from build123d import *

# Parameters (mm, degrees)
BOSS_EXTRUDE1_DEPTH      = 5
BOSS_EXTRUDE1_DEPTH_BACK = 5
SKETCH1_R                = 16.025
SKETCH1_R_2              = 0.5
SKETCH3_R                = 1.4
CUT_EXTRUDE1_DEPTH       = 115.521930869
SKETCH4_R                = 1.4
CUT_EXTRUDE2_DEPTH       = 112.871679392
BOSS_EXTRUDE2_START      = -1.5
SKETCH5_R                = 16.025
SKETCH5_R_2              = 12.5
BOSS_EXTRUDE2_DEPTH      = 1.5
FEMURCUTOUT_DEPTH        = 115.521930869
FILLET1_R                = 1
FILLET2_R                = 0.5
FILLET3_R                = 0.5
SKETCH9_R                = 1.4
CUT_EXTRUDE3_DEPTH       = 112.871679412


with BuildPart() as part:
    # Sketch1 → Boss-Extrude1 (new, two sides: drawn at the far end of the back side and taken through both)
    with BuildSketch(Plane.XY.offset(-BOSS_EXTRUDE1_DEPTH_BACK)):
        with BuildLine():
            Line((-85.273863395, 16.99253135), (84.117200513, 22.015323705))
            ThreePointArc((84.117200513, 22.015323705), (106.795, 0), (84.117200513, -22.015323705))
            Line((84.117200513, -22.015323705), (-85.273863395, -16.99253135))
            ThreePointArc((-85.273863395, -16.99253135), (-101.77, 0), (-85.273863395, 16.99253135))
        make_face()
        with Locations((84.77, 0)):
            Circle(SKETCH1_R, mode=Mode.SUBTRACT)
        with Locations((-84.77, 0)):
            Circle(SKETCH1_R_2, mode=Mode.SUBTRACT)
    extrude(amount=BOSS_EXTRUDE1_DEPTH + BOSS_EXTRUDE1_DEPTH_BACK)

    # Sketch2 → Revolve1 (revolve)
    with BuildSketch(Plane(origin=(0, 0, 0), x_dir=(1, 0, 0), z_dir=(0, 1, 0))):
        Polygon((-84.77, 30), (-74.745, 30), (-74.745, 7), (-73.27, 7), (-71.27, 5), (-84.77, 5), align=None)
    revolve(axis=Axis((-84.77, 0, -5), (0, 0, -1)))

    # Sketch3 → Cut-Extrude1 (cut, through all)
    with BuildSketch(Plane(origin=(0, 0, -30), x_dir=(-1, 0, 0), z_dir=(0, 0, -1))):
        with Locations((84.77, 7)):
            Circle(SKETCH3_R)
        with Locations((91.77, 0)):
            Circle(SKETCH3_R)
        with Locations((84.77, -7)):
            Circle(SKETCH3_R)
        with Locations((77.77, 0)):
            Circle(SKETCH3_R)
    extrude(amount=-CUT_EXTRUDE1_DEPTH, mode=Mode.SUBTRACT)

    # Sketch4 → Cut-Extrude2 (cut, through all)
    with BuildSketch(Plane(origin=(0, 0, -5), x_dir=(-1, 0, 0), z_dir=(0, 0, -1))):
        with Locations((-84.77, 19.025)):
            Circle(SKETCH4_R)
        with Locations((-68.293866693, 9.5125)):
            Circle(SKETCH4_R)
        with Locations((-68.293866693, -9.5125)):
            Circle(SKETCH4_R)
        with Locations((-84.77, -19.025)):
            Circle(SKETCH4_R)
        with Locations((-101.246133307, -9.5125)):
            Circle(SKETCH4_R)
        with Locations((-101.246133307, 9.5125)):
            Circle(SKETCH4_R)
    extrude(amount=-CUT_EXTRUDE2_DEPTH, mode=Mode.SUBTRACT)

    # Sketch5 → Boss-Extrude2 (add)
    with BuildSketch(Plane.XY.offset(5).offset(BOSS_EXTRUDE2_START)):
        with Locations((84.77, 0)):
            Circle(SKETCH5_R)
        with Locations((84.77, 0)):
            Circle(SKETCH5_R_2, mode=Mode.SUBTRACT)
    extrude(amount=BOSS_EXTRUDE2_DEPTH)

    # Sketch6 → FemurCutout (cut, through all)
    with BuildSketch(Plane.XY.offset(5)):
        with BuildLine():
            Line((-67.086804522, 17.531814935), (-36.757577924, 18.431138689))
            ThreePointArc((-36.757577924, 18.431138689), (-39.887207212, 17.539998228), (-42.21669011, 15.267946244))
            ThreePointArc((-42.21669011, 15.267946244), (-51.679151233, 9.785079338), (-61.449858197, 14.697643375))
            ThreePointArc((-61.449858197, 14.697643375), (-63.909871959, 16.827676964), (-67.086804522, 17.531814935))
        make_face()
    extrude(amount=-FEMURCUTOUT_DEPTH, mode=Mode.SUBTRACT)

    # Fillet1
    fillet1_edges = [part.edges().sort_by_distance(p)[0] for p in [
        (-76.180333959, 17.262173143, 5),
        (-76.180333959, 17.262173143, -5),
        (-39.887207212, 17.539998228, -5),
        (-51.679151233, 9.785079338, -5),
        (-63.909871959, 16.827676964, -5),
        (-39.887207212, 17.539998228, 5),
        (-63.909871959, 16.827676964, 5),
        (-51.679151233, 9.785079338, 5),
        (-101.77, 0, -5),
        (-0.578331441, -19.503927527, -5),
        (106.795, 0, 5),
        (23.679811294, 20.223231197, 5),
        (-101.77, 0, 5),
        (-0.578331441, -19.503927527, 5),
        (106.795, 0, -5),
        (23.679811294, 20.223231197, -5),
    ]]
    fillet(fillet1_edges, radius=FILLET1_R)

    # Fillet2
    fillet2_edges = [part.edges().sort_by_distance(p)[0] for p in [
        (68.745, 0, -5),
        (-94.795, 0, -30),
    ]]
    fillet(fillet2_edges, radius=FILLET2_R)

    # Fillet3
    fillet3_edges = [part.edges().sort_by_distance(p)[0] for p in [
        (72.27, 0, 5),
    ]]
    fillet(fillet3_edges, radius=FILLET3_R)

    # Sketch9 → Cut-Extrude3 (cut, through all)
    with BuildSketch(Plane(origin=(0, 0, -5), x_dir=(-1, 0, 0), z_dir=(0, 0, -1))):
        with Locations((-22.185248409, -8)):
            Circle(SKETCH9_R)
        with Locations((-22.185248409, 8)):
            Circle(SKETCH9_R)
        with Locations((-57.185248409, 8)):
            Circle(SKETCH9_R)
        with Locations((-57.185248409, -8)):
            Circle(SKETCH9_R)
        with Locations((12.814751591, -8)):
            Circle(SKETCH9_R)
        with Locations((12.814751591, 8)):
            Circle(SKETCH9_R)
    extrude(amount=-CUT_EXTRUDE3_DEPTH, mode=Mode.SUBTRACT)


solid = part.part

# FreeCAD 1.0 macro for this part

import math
import FreeCAD as App
import Part
import Sketcher

V = App.Vector
Q = App.Units.Quantity


def edges_at(feature, points):
    """Names of the edges that pass closest to the given points."""
    edges = feature.Shape.Edges
    near = lambda p: min(range(len(edges)), key=lambda i: edges[i].distToShape(Part.Vertex(*p))[0])
    return sorted({f"Edge{near(p) + 1}" for p in points})

doc = App.newDocument("Part")
body = doc.addObject("PartDesign::Body", "Body")

# Sketch on XY plane
sketch1 = body.newObject("Sketcher::SketchObject", "Sketch")
sketch1.AttachmentSupport = (doc.getObject("XY_Plane"), [""])
sketch1.MapMode = "FlatFace"
sketch1.addGeometry([
    Part.LineSegment(V(84.1, 22, 0), V(-85.3, 17, 0)),  # 0
    Part.ArcOfCircle(Part.Circle(V(-84.8, 0, 0), V(0, 0, 1), 17), math.radians(92), math.radians(268)),  # 1
    Part.LineSegment(V(-85.3, -17, 0), V(84.1, -22, 0)),  # 2
    Part.ArcOfCircle(Part.Circle(V(84.8, 0, 0), V(0, 0, 1), 22), math.radians(-92), math.radians(92)),  # 3
    Part.Circle(V(84.8, 0, 0), V(0, 0, 1), 16),  # 4
    Part.Circle(V(-84.8, 0, 0), V(0, 0, 1), 0.5),  # 5
], False)
sketch1.addConstraint([
    Sketcher.Constraint("Tangent", 0, 2, 1, 1),
    Sketcher.Constraint("Tangent", 1, 2, 2, 1),
    Sketcher.Constraint("Tangent", 2, 2, 3, 1),
    Sketcher.Constraint("Tangent", 3, 2, 0, 1),
    Sketcher.Constraint("Coincident", 4, 3, 3, 3),
    Sketcher.Constraint("Coincident", 5, 3, 1, 3),
    Sketcher.Constraint("Symmetric", 1, 3, 3, 3, -1, 1),
    Sketcher.Constraint("PointOnObject", 1, 3, -1),
    Sketcher.Constraint("Diameter", 5, 1.0),
    Sketcher.Constraint("Radius", 1, 17.0),
    Sketcher.Constraint("Diameter", 4, 32.05),
    Sketcher.Constraint("Radius", 3, 22.025),
    Sketcher.Constraint("DistanceX", 1, 3, -1, 1, 84.77),
])
pad1 = body.newObject("PartDesign::Pad", "Pad")
pad1.Profile = sketch1
pad1.Type = "TwoLengths"
pad1.Length = 5
pad1.Length2 = 5

# Sketch on XZ plane
sketch2 = body.newObject("Sketcher::SketchObject", "Sketch001")
sketch2.AttachmentSupport = (doc.getObject("XZ_Plane"), [""])
sketch2.MapMode = "FlatFace"
sketch2.addGeometry([
    Part.LineSegment(V(-74.7, -30, 0), V(-84.8, -30, 0)),  # 0
    Part.LineSegment(V(-84.8, -30, 0), V(-84.8, -5, 0)),  # 1
    Part.LineSegment(V(-84.8, -5, 0), V(-71.3, -5, 0)),  # 2
    Part.LineSegment(V(-71.3, -5, 0), V(-73.3, -7, 0)),  # 3
    Part.LineSegment(V(-73.3, -7, 0), V(-74.7, -7, 0)),  # 4
    Part.LineSegment(V(-74.7, -7, 0), V(-74.7, -30, 0)),  # 5
], False)
sketch2.addGeometry(Part.LineSegment(V(-84.8, -5, 0), V(-84.8, -30, 0)), True)  # axis
sketch2.addConstraint([
    Sketcher.Constraint("Coincident", 0, 2, 1, 1),
    Sketcher.Constraint("Coincident", 1, 2, 2, 1),
    Sketcher.Constraint("Coincident", 2, 2, 3, 1),
    Sketcher.Constraint("Coincident", 3, 2, 4, 1),
    Sketcher.Constraint("Coincident", 4, 2, 5, 1),
    Sketcher.Constraint("Coincident", 5, 2, 0, 1),
    Sketcher.Constraint("Horizontal", 0),
    Sketcher.Constraint("Vertical", 1),
    Sketcher.Constraint("Horizontal", 2),
    Sketcher.Constraint("Horizontal", 4),
    Sketcher.Constraint("Vertical", 5),
    Sketcher.Constraint("Vertical", 6),
    Sketcher.Constraint("Coincident", 6, 1, 1, 2),
    Sketcher.Constraint("Horizontal", 5, 2, 6, 2),
    Sketcher.Constraint("DistanceY", 1, 1, 1, 2, 25.0),
    Sketcher.Constraint("DistanceY", 5, 2, 5, 1, 23.0),
    Sketcher.Constraint("Angle", 3, Q("-135 deg")),
    Sketcher.Constraint("DistanceX", 2, 1, 2, 2, 13.5),
    Sketcher.Constraint("DistanceY", 0, 2, -1, 1, 30.0),
    Sketcher.Constraint("DistanceX", 0, 2, 0, 1, 10.025),
    Sketcher.Constraint("DistanceX", 0, 2, -1, 1, 84.77),
])
revolution = body.newObject("PartDesign::Revolution", "Revolution")
revolution.Profile = sketch2
revolution.ReferenceAxis = (sketch2, ["Axis0"])
revolution.Angle = 360

# Sketch on XY plane
sketch3 = body.newObject("Sketcher::SketchObject", "Sketch002")
sketch3.AttachmentSupport = (doc.getObject("XY_Plane"), [""])
sketch3.MapMode = "FlatFace"
sketch3.AttachmentOffset = App.Placement(V(0, 0, -30), App.Rotation())
sketch3.addGeometry([
    Part.Circle(V(-84.8, 7, 0), V(0, 0, 1), 1.4),
    Part.Circle(V(-91.8, 0, 0), V(0, 0, 1), 1.4),
    Part.Circle(V(-84.8, -7, 0), V(0, 0, 1), 1.4),
    Part.Circle(V(-77.8, 0, 0), V(0, 0, 1), 1.4),
], False)
sketch3.addConstraint([
    Sketcher.Constraint("Equal", 0, 1),
    Sketcher.Constraint("Equal", 1, 2),
    Sketcher.Constraint("Equal", 2, 3),
    Sketcher.Constraint("Symmetric", 0, 3, 2, 3, -1),
    Sketcher.Constraint("PointOnObject", 1, 3, -1),
    Sketcher.Constraint("PointOnObject", 3, 3, -1),
    Sketcher.Constraint("Diameter", 0, 2.8),
    Sketcher.Constraint("DistanceY", -1, 1, 0, 3, 7.0),
    Sketcher.Constraint("DistanceX", 1, 3, 0, 3, 7.0),
    Sketcher.Constraint("DistanceX", 0, 3, 3, 3, 7.0),
    Sketcher.Constraint("DistanceX", 0, 3, -1, 1, 84.77),
])
pocket1 = body.newObject("PartDesign::Pocket", "Pocket")
pocket1.Profile = sketch3
pocket1.Type = "ThroughAll"
pocket1.Reversed = True

# Sketch on XY plane
sketch4 = body.newObject("Sketcher::SketchObject", "Sketch003")
sketch4.AttachmentSupport = (doc.getObject("XY_Plane"), [""])
sketch4.MapMode = "FlatFace"
sketch4.AttachmentOffset = App.Placement(V(0, 0, -5), App.Rotation())
sketch4.addGeometry([
    Part.Circle(V(84.8, 19, 0), V(0, 0, 1), 1.4),  # 0
    Part.Circle(V(68.3, 9.5, 0), V(0, 0, 1), 1.4),  # 1
    Part.Circle(V(68.3, -9.5, 0), V(0, 0, 1), 1.4),  # 2
    Part.Circle(V(84.8, -19, 0), V(0, 0, 1), 1.4),  # 3
    Part.Circle(V(101.2, -9.5, 0), V(0, 0, 1), 1.4),  # 4
    Part.Circle(V(101.2, 9.5, 0), V(0, 0, 1), 1.4),  # 5
], False)
sketch4.addConstraint([
    Sketcher.Constraint("Equal", 0, 1),
    Sketcher.Constraint("Equal", 1, 2),
    Sketcher.Constraint("Equal", 2, 3),
    Sketcher.Constraint("Equal", 3, 4),
    Sketcher.Constraint("Equal", 4, 5),
    Sketcher.Constraint("Symmetric", 1, 3, 2, 3, -1),
    Sketcher.Constraint("Symmetric", 0, 3, 3, 3, -1),
    Sketcher.Constraint("Symmetric", 4, 3, 5, 3, -1),
    Sketcher.Constraint("Horizontal", 2, 3, 4, 3),
    Sketcher.Constraint("Diameter", 0, 2.8),
    Sketcher.Constraint("DistanceX", -1, 1, 0, 3, 84.77),
    Sketcher.Constraint("DistanceY", 3, 3, 0, 3, 38.05),
    Sketcher.Constraint("DistanceY", 2, 3, 1, 3, 19.025),
    Sketcher.Constraint("DistanceX", -1, 1, 1, 3, 68.293867),
    Sketcher.Constraint("DistanceX", -1, 1, 4, 3, 101.246133),
])
pocket2 = body.newObject("PartDesign::Pocket", "Pocket001")
pocket2.Profile = sketch4
pocket2.Type = "ThroughAll"
pocket2.Reversed = True

# Sketch on XY plane
sketch5 = body.newObject("Sketcher::SketchObject", "Sketch004")
sketch5.AttachmentSupport = (doc.getObject("XY_Plane"), [""])
sketch5.MapMode = "FlatFace"
sketch5.AttachmentOffset = App.Placement(V(0, 0, 3.5), App.Rotation())
sketch5.addGeometry([
    Part.Circle(V(85, 0, 0), V(0, 0, 1), 16),
    Part.Circle(V(85, 0, 0), V(0, 0, 1), 12),
], False)
sketch5.addConstraint([
    Sketcher.Constraint("Coincident", 1, 3, 0, 3),
    Sketcher.Constraint("PointOnObject", 0, 3, -1),
    Sketcher.Constraint("Diameter", 1, 25.0),
    Sketcher.Constraint("Diameter", 0, 32.05),
    Sketcher.Constraint("DistanceX", -1, 1, 0, 3, 84.77),
])
pad2 = body.newObject("PartDesign::Pad", "Pad001")
pad2.Profile = sketch5
pad2.Length = 1.5

# Sketch on XY plane
sketch6 = body.newObject("Sketcher::SketchObject", "Sketch005")
sketch6.AttachmentSupport = (doc.getObject("XY_Plane"), [""])
sketch6.MapMode = "FlatFace"
sketch6.AttachmentOffset = App.Placement(V(0, 0, 5), App.Rotation())
sketch6.addGeometry([
    Part.LineSegment(V(-36.757578, 18.431139, 0), V(-67.086805, 17.531815, 0)),
    Part.ArcOfCircle(Part.Circle(V(-66.890161, 10.900114, 0), V(0, 0, 1), 6.634615), math.radians(34.916441), math.radians(91.69844)),
    Part.ArcOfCircle(Part.Circle(V(-52.02, 21.280027, 0), V(0, 0, 1), 11.5), math.radians(-145.083559), math.radians(-31.519561)),
    Part.ArcOfCircle(Part.Circle(V(-36.560934, 11.799438, 0), V(0, 0, 1), 6.634615), math.radians(91.69844), math.radians(148.480439)),
], False)
sketch6.addConstraint([
    Sketcher.Constraint("Coincident", 0, 2, 1, 2),
    Sketcher.Constraint("Coincident", 1, 1, 2, 1),
    Sketcher.Constraint("Coincident", 2, 2, 3, 2),
    Sketcher.Constraint("Coincident", 3, 1, 0, 1),
    Sketcher.Constraint("Radius", 2, 11.5),
    Sketcher.Constraint("DistanceX", 2, 3, -1, 1, 52.02),
    Sketcher.Constraint("Radius", 1, 6.634615),
    Sketcher.Constraint("Radius", 3, 6.634615),
    Sketcher.Constraint("DistanceY", 1, 3, 0, 2, 6.631701),
    Sketcher.Constraint("DistanceY", 3, 3, 3, 1, 6.631701),
    Sketcher.Constraint("DistanceX", 1, 3, -1, 1, 66.890161),
    Sketcher.Constraint("DistanceY", -1, 1, 3, 3, 11.799438),
    Sketcher.Constraint("DistanceX", 1, 1, -1, 1, 61.449858),
    Sketcher.Constraint("DistanceX", 2, 2, -1, 1, 42.21669),
    Sketcher.Constraint("DistanceY", 3, 3, 2, 3, 9.480589),
])
pocket3 = body.newObject("PartDesign::Pocket", "Pocket002")
pocket3.Profile = sketch6
pocket3.Type = "ThroughAll"
doc.recompute()

fillet = body.newObject("PartDesign::Fillet", "Fillet")
fillet.Base = (pocket3, edges_at(pocket3, [
    (-76.18, 17.262, 5),
    (-76.18, 17.262, -5),
    (-39.887, 17.54, -5),
    (-51.679, 9.785, -5),
    (-63.91, 16.828, -5),
    (-39.887, 17.54, 5),
    (-63.91, 16.828, 5),
    (-51.679, 9.785, 5),
    (-101.77, 0, -5),
    (-0.578, -19.504, -5),
    (106.795, 0, 5),
    (23.68, 20.223, 5),
    (-101.77, 0, 5),
    (-0.578, -19.504, 5),
    (106.795, 0, -5),
    (23.68, 20.223, -5),
]))
fillet.Radius = 1
doc.recompute()

fillet2 = body.newObject("PartDesign::Fillet", "Fillet001")
fillet2.Base = (fillet, edges_at(fillet, [(68.745, 0, -5), (-94.795, 0, -30)]))
fillet2.Radius = 0.5
doc.recompute()

fillet3 = body.newObject("PartDesign::Fillet", "Fillet002")
fillet3.Base = (fillet2, edges_at(fillet2, [(72.27, 0, 5)]))
fillet3.Radius = 0.5

# Sketch on XY plane
sketch7 = body.newObject("Sketcher::SketchObject", "Sketch006")
sketch7.AttachmentSupport = (doc.getObject("XY_Plane"), [""])
sketch7.MapMode = "FlatFace"
sketch7.AttachmentOffset = App.Placement(V(0, 0, -5), App.Rotation())
sketch7.addGeometry([
    Part.Circle(V(22.2, -8, 0), V(0, 0, 1), 1.4),  # 0
    Part.Circle(V(22.2, 8, 0), V(0, 0, 1), 1.4),  # 1
    Part.Circle(V(57.2, 8, 0), V(0, 0, 1), 1.4),  # 2
    Part.Circle(V(57.2, -8, 0), V(0, 0, 1), 1.4),  # 3
    Part.Circle(V(-12.8, -8, 0), V(0, 0, 1), 1.4),  # 4
    Part.Circle(V(-12.8, 8, 0), V(0, 0, 1), 1.4),  # 5
], False)
sketch7.addConstraint([
    Sketcher.Constraint("Equal", 0, 1),
    Sketcher.Constraint("Equal", 1, 2),
    Sketcher.Constraint("Equal", 2, 3),
    Sketcher.Constraint("Equal", 3, 4),
    Sketcher.Constraint("Equal", 4, 5),
    Sketcher.Constraint("Symmetric", 0, 3, 1, 3, -1),
    Sketcher.Constraint("Symmetric", 2, 3, 3, 3, -1),
    Sketcher.Constraint("Symmetric", 4, 3, 5, 3, -1),
    Sketcher.Constraint("Horizontal", 1, 3, 2, 3),
    Sketcher.Constraint("Horizontal", 3, 3, 4, 3),
    Sketcher.Constraint("Diameter", 0, 2.8),
    Sketcher.Constraint("DistanceY", 0, 3, -1, 1, 8.0),
    Sketcher.Constraint("DistanceX", 1, 3, 2, 3, 35.0),
    Sketcher.Constraint("DistanceX", 4, 3, 0, 3, 35.0),
    Sketcher.Constraint("DistanceX", -1, 1, 0, 3, 22.185248),
])
pocket4 = body.newObject("PartDesign::Pocket", "Pocket003")
pocket4.Profile = sketch7
pocket4.Type = "ThroughAll"
pocket4.Reversed = True

doc.recompute()
